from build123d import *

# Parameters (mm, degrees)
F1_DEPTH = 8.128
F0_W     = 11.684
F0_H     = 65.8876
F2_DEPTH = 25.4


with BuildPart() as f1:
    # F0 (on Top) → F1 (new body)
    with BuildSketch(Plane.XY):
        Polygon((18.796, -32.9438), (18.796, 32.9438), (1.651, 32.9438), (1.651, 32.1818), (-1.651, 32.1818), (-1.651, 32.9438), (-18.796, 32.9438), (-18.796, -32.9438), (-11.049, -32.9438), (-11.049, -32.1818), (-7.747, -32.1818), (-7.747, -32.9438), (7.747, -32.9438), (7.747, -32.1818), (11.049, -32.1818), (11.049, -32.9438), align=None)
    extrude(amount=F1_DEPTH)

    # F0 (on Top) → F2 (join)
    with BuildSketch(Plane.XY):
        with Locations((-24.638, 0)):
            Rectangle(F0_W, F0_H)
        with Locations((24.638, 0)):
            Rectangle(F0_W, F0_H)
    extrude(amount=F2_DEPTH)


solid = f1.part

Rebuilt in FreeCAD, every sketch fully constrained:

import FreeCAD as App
import Part
import Sketcher
from FreeCAD import Vector
Q = App.Units.Quantity

doc = App.newDocument("Part")
params = doc.addObject("Spreadsheet::Sheet", "Params")
for row, (alias, value) in enumerate([
    ("sketch1_width", "0.13 in"),
    ("sketch1_width2", "0.61 in"),
    ("sketch1_height", "0.03 in"),
    ("sketch1_width3", "0.675 in"),
    ("sketch1_height2", "2.594 in"),
    ("pad1_length", "0.32 in"),
    ("sketch2_width", "0.46 in"),
    ("sketch2_height", "2.594 in"),
    ("pad2_length", "1 in"),
], start=1):
    params.set(f"A{row}", alias)
    params.set(f"B{row}", "=" + value)
    params.setAlias(f"B{row}", alias)

body = doc.addObject("PartDesign::Body", "Body")

# Sketch on XY plane
sketch1 = doc.addObject("Sketcher::SketchObject", "Sketch")
body.addObject(sketch1)
sketch1.AttachmentSupport = (doc.XY_Plane, [""])
sketch1.MapMode = "FlatFace"
sketch1.addGeometry(Part.LineSegment(Vector(18.796, -32.9438, 0), Vector(18.796, 32.9438, 0)), False)
sketch1.addGeometry(Part.LineSegment(Vector(18.796, 32.9438, 0), Vector(1.651, 32.9438, 0)), False)
sketch1.addGeometry(Part.LineSegment(Vector(1.651, 32.9438, 0), Vector(1.651, 32.1818, 0)), False)
sketch1.addGeometry(Part.LineSegment(Vector(1.651, 32.1818, 0), Vector(-1.651, 32.1818, 0)), False)
sketch1.addGeometry(Part.LineSegment(Vector(-1.651, 32.1818, 0), Vector(-1.651, 32.9438, 0)), False)
sketch1.addGeometry(Part.LineSegment(Vector(-1.651, 32.9438, 0), Vector(-18.796, 32.9438, 0)), False)
sketch1.addGeometry(Part.LineSegment(Vector(-18.796, 32.9438, 0), Vector(-18.796, -32.9438, 0)), False)
sketch1.addGeometry(Part.LineSegment(Vector(-18.796, -32.9438, 0), Vector(-11.049, -32.9438, 0)), False)
sketch1.addGeometry(Part.LineSegment(Vector(-11.049, -32.9438, 0), Vector(-11.049, -32.1818, 0)), False)
sketch1.addGeometry(Part.LineSegment(Vector(-11.049, -32.1818, 0), Vector(-7.747, -32.1818, 0)), False)
sketch1.addGeometry(Part.LineSegment(Vector(-7.747, -32.1818, 0), Vector(-7.747, -32.9438, 0)), False)
sketch1.addGeometry(Part.LineSegment(Vector(-7.747, -32.9438, 0), Vector(7.747, -32.9438, 0)), False)
sketch1.addGeometry(Part.LineSegment(Vector(7.747, -32.9438, 0), Vector(7.747, -32.1818, 0)), False)
sketch1.addGeometry(Part.LineSegment(Vector(7.747, -32.1818, 0), Vector(11.049, -32.1818, 0)), False)
sketch1.addGeometry(Part.LineSegment(Vector(11.049, -32.1818, 0), Vector(11.049, -32.9438, 0)), False)
sketch1.addGeometry(Part.LineSegment(Vector(11.049, -32.9438, 0), Vector(18.796, -32.9438, 0)), False)
sketch1.addConstraint(Sketcher.Constraint("Coincident", 0, 2, 1, 1))
sketch1.addConstraint(Sketcher.Constraint("Coincident", 1, 2, 2, 1))
sketch1.addConstraint(Sketcher.Constraint("Coincident", 2, 2, 3, 1))
sketch1.addConstraint(Sketcher.Constraint("Coincident", 3, 2, 4, 1))
sketch1.addConstraint(Sketcher.Constraint("Coincident", 4, 2, 5, 1))
sketch1.addConstraint(Sketcher.Constraint("Coincident", 5, 2, 6, 1))
sketch1.addConstraint(Sketcher.Constraint("Coincident", 6, 2, 7, 1))
sketch1.addConstraint(Sketcher.Constraint("Coincident", 7, 2, 8, 1))
sketch1.addConstraint(Sketcher.Constraint("Coincident", 8, 2, 9, 1))
sketch1.addConstraint(Sketcher.Constraint("Coincident", 9, 2, 10, 1))
sketch1.addConstraint(Sketcher.Constraint("Coincident", 10, 2, 11, 1))
sketch1.addConstraint(Sketcher.Constraint("Coincident", 11, 2, 12, 1))
sketch1.addConstraint(Sketcher.Constraint("Coincident", 12, 2, 13, 1))
sketch1.addConstraint(Sketcher.Constraint("Coincident", 13, 2, 14, 1))
sketch1.addConstraint(Sketcher.Constraint("Coincident", 14, 2, 15, 1))
sketch1.addConstraint(Sketcher.Constraint("Coincident", 15, 2, 0, 1))
sketch1.addConstraint(Sketcher.Constraint("Vertical", 0))
sketch1.addConstraint(Sketcher.Constraint("Horizontal", 1))
sketch1.addConstraint(Sketcher.Constraint("Vertical", 2))
sketch1.addConstraint(Sketcher.Constraint("Horizontal", 3))
sketch1.addConstraint(Sketcher.Constraint("Vertical", 4))
sketch1.addConstraint(Sketcher.Constraint("Horizontal", 5))
sketch1.addConstraint(Sketcher.Constraint("Vertical", 6))
sketch1.addConstraint(Sketcher.Constraint("Horizontal", 7))
sketch1.addConstraint(Sketcher.Constraint("Vertical", 8))
sketch1.addConstraint(Sketcher.Constraint("Horizontal", 9))
sketch1.addConstraint(Sketcher.Constraint("Vertical", 10))
sketch1.addConstraint(Sketcher.Constraint("Horizontal", 11))
sketch1.addConstraint(Sketcher.Constraint("Vertical", 12))
sketch1.addConstraint(Sketcher.Constraint("Horizontal", 13))
sketch1.addConstraint(Sketcher.Constraint("Vertical", 14))
sketch1.addConstraint(Sketcher.Constraint("Horizontal", 15))
sketch1.addConstraint(Sketcher.Constraint("Symmetric", 0, 2, 6, 2, -1, 1))
sketch1.addConstraint(Sketcher.Constraint("Symmetric", 1, 2, 4, 2, -2))
sketch1.addConstraint(Sketcher.Constraint("Symmetric", 9, 2, 12, 2, -2))
sketch1.addConstraint(Sketcher.Constraint("Symmetric", 7, 2, 14, 2, -2))
sketch1.addConstraint(Sketcher.Constraint("Horizontal", 7, 2, 10, 2))
sketch1.addConstraint(Sketcher.Constraint("Equal", 3, 9))
sketch1.addConstraint(Sketcher.Constraint("Equal", 4, 8))
sketch1.addConstraint(Sketcher.Constraint("DistanceX", 3, 2, 3, 1, Q("0.13 in")))
sketch1.addConstraint(Sketcher.Constraint("DistanceX", 11, 1, 11, 2, Q("0.61 in")))
sketch1.addConstraint(Sketcher.Constraint("DistanceY", 2, 2, 2, 1, Q("0.03 in")))
sketch1.addConstraint(Sketcher.Constraint("DistanceX", 1, 2, 1, 1, Q("0.675 in")))
sketch1.addConstraint(Sketcher.Constraint("DistanceY", 0, 1, 0, 2, Q("2.594 in")))
sketch1.setExpression("Constraints[39]", "Params.sketch1_width")
sketch1.setExpression("Constraints[40]", "Params.sketch1_width2")
sketch1.setExpression("Constraints[41]", "Params.sketch1_height")
sketch1.setExpression("Constraints[42]", "Params.sketch1_width3")
sketch1.setExpression("Constraints[43]", "Params.sketch1_height2")
pad1 = doc.addObject("PartDesign::Pad", "Pad")
body.addObject(pad1)
pad1.Profile = sketch1
pad1.setExpression("Length", "Params.pad1_length")

# Sketch on XY plane
sketch2 = doc.addObject("Sketcher::SketchObject", "Sketch001")
body.addObject(sketch2)
sketch2.AttachmentSupport = (doc.XY_Plane, [""])
sketch2.MapMode = "FlatFace"
sketch2.addGeometry(Part.LineSegment(Vector(-30.48, 32.9438, 0), Vector(-30.48, -32.9438, 0)), False)
sketch2.addGeometry(Part.LineSegment(Vector(-30.48, -32.9438, 0), Vector(-18.796, -32.9438, 0)), False)
sketch2.addGeometry(Part.LineSegment(Vector(-18.796, -32.9438, 0), Vector(-18.796, 32.9438, 0)), False)
sketch2.addGeometry(Part.LineSegment(Vector(-18.796, 32.9438, 0), Vector(-30.48, 32.9438, 0)), False)
sketch2.addGeometry(Part.LineSegment(Vector(18.796, 32.9438, 0), Vector(18.796, -32.9438, 0)), False)
sketch2.addGeometry(Part.LineSegment(Vector(18.796, -32.9438, 0), Vector(30.48, -32.9438, 0)), False)
sketch2.addGeometry(Part.LineSegment(Vector(30.48, -32.9438, 0), Vector(30.48, 32.9438, 0)), False)
sketch2.addGeometry(Part.LineSegment(Vector(30.48, 32.9438, 0), Vector(18.796, 32.9438, 0)), False)
sketch2.addConstraint(Sketcher.Constraint("Coincident", 0, 2, 1, 1))
sketch2.addConstraint(Sketcher.Constraint("Coincident", 1, 2, 2, 1))
sketch2.addConstraint(Sketcher.Constraint("Coincident", 2, 2, 3, 1))
sketch2.addConstraint(Sketcher.Constraint("Coincident", 3, 2, 0, 1))
sketch2.addConstraint(Sketcher.Constraint("Coincident", 4, 2, 5, 1))
sketch2.addConstraint(Sketcher.Constraint("Coincident", 5, 2, 6, 1))
sketch2.addConstraint(Sketcher.Constraint("Coincident", 6, 2, 7, 1))
sketch2.addConstraint(Sketcher.Constraint("Coincident", 7, 2, 4, 1))
sketch2.addConstraint(Sketcher.Constraint("Vertical", 0))
sketch2.addConstraint(Sketcher.Constraint("Horizontal", 1))
sketch2.addConstraint(Sketcher.Constraint("Vertical", 2))
sketch2.addConstraint(Sketcher.Constraint("Horizontal", 3))
sketch2.addConstraint(Sketcher.Constraint("Vertical", 4))
sketch2.addConstraint(Sketcher.Constraint("Horizontal", 5))
sketch2.addConstraint(Sketcher.Constraint("Vertical", 6))
sketch2.addConstraint(Sketcher.Constraint("Horizontal", 7))
sketch2.addConstraint(Sketcher.Constraint("Symmetric", 2, 2, 4, 2, -1, 1))
sketch2.addConstraint(Sketcher.Constraint("Symmetric", 0, 2, 6, 2, -1, 1))
sketch2.addConstraint(Sketcher.Constraint("Horizontal", 1, 2, 4, 2))
sketch2.addConstraint(Sketcher.Constraint("DistanceX", 1, 1, 1, 2, Q("0.46 in")))
sketch2.addConstraint(Sketcher.Constraint("DistanceX", 0, 2, -1, 1, Q("1.2 in")))
sketch2.addConstraint(Sketcher.Constraint("DistanceY", 0, 2, 0, 1, Q("2.594 in")))
sketch2.setExpression("Constraints[19]", "Params.sketch2_width")
sketch2.setExpression("Constraints[21]", "Params.sketch2_height")
pad2 = doc.addObject("PartDesign::Pad", "Pad001")
body.addObject(pad2)
pad2.Profile = sketch2
pad2.setExpression("Length", "Params.pad2_length")

doc.recompute()
